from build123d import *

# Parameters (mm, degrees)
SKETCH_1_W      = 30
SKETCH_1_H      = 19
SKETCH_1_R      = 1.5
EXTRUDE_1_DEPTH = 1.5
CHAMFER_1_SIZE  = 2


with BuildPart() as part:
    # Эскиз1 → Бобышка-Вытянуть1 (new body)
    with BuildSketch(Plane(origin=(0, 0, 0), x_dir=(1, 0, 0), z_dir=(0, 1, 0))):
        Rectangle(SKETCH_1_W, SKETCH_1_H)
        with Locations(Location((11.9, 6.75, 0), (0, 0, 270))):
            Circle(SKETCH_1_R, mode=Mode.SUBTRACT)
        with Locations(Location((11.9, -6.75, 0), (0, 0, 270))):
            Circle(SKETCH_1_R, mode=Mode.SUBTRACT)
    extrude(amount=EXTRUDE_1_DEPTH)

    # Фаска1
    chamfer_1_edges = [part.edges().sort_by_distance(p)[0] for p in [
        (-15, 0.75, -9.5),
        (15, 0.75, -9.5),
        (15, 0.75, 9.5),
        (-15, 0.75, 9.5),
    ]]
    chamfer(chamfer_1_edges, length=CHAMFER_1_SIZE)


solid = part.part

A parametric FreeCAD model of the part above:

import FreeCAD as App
import Part
import Sketcher
Q = App.Units.Quantity


def edges_at(feature, points):
    """Names of the edges that pass closest to the given points."""
    edges = feature.Shape.Edges
    near = lambda p: min(range(len(edges)), key=lambda i: edges[i].distToShape(Part.Vertex(*p))[0])
    return sorted({f"Edge{near(p) + 1}" for p in points})

doc = App.newDocument("Part")
body = doc.addObject("PartDesign::Body", "Body")

# Sketch on XZ plane
sketch1 = body.newObject("Sketcher::SketchObject", "Sketch")
sketch1.AttachmentSupport = (doc.getObject("XZ_Plane"), [""])
sketch1.MapMode = "FlatFace"
sketch1.addGeometry([
    Part.LineSegment(App.Vector(-15, -9.5, 0), App.Vector(-15, 9.5, 0)),  # 0
    Part.LineSegment(App.Vector(-15, 9.5, 0), App.Vector(15, 9.5, 0)),  # 1
    Part.LineSegment(App.Vector(15, 9.5, 0), App.Vector(15, -9.5, 0)),  # 2
    Part.LineSegment(App.Vector(15, -9.5, 0), App.Vector(-15, -9.5, 0)),  # 3
    Part.Circle(App.Vector(11.9, 6.75, 0), App.Vector(0, 0, 1), 1.5),  # 4
    Part.Circle(App.Vector(11.9, -6.75, 0), App.Vector(0, 0, 1), 1.5),  # 5
], False)
sketch1.addConstraint([
    Sketcher.Constraint("Coincident", 0, 2, 1, 1),
    Sketcher.Constraint("Coincident", 1, 2, 2, 1),
    Sketcher.Constraint("Coincident", 2, 2, 3, 1),
    Sketcher.Constraint("Coincident", 3, 2, 0, 1),
    Sketcher.Constraint("Vertical", 0),
    Sketcher.Constraint("Horizontal", 1),
    Sketcher.Constraint("Vertical", 2),
    Sketcher.Constraint("Horizontal", 3),
    Sketcher.Constraint("Equal", 4, 5),
    Sketcher.Constraint("Symmetric", 0, 2, 2, 2, -1, 1),
    Sketcher.Constraint("Symmetric", 4, 3, 5, 3, -1),
    Sketcher.Constraint("Diameter", 4, Q("3 mm")),
    Sketcher.Constraint("DistanceX", 1, 1, 1, 2, Q("30 mm")),
    Sketcher.Constraint("DistanceY", 0, 1, 0, 2, Q("19 mm")),
    Sketcher.Constraint("DistanceX", -1, 1, 4, 3, Q("11.9 mm")),
    Sketcher.Constraint("DistanceY", 5, 3, 4, 3, Q("13.5 mm")),
])
pad1 = body.newObject("PartDesign::Pad", "Pad")
pad1.Profile = sketch1
pad1.Length = 1.5
pad1.Reversed = True
doc.recompute()

chamfer = body.newObject("PartDesign::Chamfer", "Chamfer")
chamfer.Base = (pad1, edges_at(pad1, [
    (-15, 0.75, -9.5),
    (15, 0.75, -9.5),
    (15, 0.75, 9.5),
    (-15, 0.75, 9.5),
]))
chamfer.Size = 2

doc.recompute()
